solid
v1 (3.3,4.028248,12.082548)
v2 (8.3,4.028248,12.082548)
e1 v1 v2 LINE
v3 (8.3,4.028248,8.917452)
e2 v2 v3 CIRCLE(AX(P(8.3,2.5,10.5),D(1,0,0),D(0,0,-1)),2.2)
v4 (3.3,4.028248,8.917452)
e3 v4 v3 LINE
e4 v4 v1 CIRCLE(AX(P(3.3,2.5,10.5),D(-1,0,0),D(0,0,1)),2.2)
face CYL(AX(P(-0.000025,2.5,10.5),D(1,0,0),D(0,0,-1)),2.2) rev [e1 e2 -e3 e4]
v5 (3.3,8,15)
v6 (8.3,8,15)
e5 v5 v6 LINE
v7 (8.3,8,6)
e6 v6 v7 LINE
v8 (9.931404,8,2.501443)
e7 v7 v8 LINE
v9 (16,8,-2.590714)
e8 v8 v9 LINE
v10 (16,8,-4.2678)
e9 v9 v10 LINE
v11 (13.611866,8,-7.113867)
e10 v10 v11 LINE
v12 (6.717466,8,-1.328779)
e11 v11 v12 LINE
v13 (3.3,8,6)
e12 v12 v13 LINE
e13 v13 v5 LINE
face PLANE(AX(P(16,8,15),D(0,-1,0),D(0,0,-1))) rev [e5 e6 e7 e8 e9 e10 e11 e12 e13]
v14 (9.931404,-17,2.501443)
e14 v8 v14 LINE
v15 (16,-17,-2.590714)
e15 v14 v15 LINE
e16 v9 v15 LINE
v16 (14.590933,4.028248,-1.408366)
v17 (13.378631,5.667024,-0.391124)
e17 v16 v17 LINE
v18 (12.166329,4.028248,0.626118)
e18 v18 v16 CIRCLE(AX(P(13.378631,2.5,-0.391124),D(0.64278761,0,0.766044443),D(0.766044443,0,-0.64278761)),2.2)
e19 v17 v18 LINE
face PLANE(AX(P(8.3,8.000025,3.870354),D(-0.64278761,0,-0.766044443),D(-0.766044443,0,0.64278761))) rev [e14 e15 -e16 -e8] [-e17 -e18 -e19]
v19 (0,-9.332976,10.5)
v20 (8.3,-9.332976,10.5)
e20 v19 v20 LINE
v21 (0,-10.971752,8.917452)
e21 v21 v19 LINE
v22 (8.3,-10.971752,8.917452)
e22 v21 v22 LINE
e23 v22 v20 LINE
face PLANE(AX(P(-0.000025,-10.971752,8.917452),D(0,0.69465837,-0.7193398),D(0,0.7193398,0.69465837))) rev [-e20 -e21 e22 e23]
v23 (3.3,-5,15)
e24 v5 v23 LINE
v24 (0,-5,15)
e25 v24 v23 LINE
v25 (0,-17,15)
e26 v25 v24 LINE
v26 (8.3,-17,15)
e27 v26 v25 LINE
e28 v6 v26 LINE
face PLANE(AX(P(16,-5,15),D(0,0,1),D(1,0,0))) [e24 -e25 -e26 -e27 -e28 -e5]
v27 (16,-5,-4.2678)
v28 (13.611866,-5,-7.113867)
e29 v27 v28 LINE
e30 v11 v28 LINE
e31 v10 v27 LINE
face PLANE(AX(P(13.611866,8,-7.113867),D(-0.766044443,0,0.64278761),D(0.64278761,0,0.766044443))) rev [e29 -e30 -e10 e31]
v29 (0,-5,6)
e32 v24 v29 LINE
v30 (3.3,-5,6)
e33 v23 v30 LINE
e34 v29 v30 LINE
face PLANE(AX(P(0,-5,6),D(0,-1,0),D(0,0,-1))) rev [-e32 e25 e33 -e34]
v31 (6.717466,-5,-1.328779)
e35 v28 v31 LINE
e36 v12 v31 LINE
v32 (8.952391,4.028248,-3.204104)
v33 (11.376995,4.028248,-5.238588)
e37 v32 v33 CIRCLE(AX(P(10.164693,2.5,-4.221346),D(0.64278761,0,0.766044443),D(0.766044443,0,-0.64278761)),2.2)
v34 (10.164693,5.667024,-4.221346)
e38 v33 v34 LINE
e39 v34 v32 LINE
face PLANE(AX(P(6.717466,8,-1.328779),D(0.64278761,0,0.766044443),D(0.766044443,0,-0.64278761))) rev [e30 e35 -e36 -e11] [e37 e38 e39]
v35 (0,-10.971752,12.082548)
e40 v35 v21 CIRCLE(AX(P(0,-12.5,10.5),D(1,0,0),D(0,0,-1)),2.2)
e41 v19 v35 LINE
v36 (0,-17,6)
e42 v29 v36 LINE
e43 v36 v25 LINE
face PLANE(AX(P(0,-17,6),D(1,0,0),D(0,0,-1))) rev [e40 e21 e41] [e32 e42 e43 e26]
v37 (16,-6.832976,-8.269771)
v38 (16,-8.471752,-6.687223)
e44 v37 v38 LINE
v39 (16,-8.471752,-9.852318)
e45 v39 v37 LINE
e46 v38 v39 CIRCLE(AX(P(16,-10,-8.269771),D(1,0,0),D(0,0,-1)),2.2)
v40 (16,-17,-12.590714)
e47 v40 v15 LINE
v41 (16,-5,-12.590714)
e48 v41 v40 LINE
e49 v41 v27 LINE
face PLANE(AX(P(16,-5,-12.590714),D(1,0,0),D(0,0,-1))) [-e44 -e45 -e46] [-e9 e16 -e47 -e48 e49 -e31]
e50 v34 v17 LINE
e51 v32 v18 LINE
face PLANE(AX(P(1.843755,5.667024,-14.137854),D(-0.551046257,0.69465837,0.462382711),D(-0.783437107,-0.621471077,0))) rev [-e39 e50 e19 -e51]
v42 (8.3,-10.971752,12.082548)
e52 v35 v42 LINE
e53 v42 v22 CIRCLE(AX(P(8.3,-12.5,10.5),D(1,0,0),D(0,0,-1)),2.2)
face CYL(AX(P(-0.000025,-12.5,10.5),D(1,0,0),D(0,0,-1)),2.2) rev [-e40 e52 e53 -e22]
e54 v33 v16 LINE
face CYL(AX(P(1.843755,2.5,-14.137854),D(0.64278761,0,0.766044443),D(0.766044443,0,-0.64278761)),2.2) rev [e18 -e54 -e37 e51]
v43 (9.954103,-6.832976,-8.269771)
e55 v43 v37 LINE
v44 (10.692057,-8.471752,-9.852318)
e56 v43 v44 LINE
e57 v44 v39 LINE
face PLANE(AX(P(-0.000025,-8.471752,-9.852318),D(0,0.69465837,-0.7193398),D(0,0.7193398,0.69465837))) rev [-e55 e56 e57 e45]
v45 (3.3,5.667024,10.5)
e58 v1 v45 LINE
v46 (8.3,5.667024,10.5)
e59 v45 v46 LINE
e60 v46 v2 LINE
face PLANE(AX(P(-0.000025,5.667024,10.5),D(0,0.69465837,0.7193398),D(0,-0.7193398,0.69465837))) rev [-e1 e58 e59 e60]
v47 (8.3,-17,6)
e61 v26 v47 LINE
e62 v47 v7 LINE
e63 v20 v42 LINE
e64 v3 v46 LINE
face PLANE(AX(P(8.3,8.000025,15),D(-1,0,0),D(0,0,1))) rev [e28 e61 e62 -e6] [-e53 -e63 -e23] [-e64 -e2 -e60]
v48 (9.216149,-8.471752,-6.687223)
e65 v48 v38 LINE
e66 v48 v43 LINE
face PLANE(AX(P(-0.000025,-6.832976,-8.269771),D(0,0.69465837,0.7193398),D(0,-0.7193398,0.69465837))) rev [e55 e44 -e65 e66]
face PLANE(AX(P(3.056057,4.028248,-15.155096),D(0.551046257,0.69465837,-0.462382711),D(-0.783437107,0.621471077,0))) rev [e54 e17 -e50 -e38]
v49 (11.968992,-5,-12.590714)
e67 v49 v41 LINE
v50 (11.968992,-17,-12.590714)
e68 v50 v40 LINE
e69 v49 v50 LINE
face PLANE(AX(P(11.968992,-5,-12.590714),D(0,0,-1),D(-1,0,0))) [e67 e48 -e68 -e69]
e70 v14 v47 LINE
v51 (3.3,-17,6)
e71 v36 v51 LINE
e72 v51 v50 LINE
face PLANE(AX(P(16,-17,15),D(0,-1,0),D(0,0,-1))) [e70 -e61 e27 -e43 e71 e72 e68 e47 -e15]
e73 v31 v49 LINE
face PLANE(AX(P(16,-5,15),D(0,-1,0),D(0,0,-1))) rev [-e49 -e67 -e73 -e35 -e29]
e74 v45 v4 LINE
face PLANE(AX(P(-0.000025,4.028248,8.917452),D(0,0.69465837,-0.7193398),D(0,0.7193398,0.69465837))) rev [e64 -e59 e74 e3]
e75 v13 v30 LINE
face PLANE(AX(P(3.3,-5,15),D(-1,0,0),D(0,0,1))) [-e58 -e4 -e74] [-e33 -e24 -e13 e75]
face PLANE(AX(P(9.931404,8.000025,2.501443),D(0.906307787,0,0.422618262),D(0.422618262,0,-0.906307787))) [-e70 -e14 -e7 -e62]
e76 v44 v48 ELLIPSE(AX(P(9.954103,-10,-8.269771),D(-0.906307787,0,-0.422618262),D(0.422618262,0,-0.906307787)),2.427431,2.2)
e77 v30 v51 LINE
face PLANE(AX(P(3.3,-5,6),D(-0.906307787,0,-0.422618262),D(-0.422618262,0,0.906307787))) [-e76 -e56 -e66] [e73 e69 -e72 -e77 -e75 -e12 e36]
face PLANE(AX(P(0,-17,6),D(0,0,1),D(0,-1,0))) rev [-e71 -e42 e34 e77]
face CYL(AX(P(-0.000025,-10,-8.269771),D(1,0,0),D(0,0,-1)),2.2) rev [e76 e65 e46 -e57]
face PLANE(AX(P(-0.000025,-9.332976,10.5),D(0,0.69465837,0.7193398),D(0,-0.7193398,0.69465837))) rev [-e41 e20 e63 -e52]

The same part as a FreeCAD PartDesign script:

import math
import FreeCAD as App
import Part
import Sketcher
Q = App.Units.Quantity


def edges_at(feature, points):
    """Names of the edges that pass closest to the given points."""
    edges = feature.Shape.Edges
    near = lambda p: min(range(len(edges)), key=lambda i: edges[i].distToShape(Part.Vertex(*p))[0])
    return sorted({f"Edge{near(p) + 1}" for p in points})

doc = App.newDocument("Part")
body = doc.addObject("PartDesign::Body", "Body")

# Sketch on XZ plane
sketch1 = doc.addObject("Sketcher::SketchObject", "Sketch")
body.addObject(sketch1)
sketch1.AttachmentSupport = (doc.XZ_Plane, [""])
sketch1.MapMode = "FlatFace"
sketch1.AttachmentOffset = App.Placement(App.Vector(0, 0, 17), App.Rotation())
sketch1.addGeometry(Part.LineSegment(App.Vector(16, 15, 0), App.Vector(3.3, 15, 0)), False)
sketch1.addGeometry(Part.LineSegment(App.Vector(3.3, 15, 0), App.Vector(3.3, 6, 0)), False)
sketch1.addGeometry(Part.LineSegment(App.Vector(3.3, 6, 0), App.Vector(12, -12.6, 0)), False)
sketch1.addGeometry(Part.LineSegment(App.Vector(12, -12.6, 0), App.Vector(16, -12.6, 0)), False)
sketch1.addGeometry(Part.LineSegment(App.Vector(16, -12.6, 0), App.Vector(16, 15, 0)), False)
sketch1.addConstraint(Sketcher.Constraint("Coincident", 0, 2, 1, 1))
sketch1.addConstraint(Sketcher.Constraint("Coincident", 1, 2, 2, 1))
sketch1.addConstraint(Sketcher.Constraint("Coincident", 2, 2, 3, 1))
sketch1.addConstraint(Sketcher.Constraint("Coincident", 3, 2, 4, 1))
sketch1.addConstraint(Sketcher.Constraint("Coincident", 4, 2, 0, 1))
sketch1.addConstraint(Sketcher.Constraint("Horizontal", 0))
sketch1.addConstraint(Sketcher.Constraint("Vertical", 1))
sketch1.addConstraint(Sketcher.Constraint("Horizontal", 3))
sketch1.addConstraint(Sketcher.Constraint("Vertical", 4))
sketch1.addConstraint(Sketcher.Constraint("DistanceY", 1, 2, 1, 1, 9.0))
sketch1.addConstraint(Sketcher.Constraint("Angle", 2, Q("-65 deg")))
sketch1.addConstraint(Sketcher.Constraint("DistanceX", 0, 2, 0, 1, 12.7))
sketch1.addConstraint(Sketcher.Constraint("DistanceY", -1, 1, 0, 2, 15.0))
sketch1.addConstraint(Sketcher.Constraint("DistanceX", -1, 1, 3, 2, 16.0))
sketch1.addConstraint(Sketcher.Constraint("DistanceX", 3, 1, 3, 2, 4.031008))
pad1 = doc.addObject("PartDesign::Pad", "Pad")
body.addObject(pad1)
pad1.Profile = sketch1
pad1.Length = 12
pad1.Reversed = True

# Sketch on XZ plane
sketch2 = doc.addObject("Sketcher::SketchObject", "Sketch001")
body.addObject(sketch2)
sketch2.AttachmentSupport = (doc.XZ_Plane, [""])
sketch2.MapMode = "FlatFace"
sketch2.AttachmentOffset = App.Placement(App.Vector(0, 0, 5), App.Rotation())
sketch2.addGeometry(Part.LineSegment(App.Vector(3.3, 15, 0), App.Vector(16, 15, 0)), False)
sketch2.addGeometry(Part.LineSegment(App.Vector(16, 15, 0), App.Vector(16, -4.3, 0)), False)
sketch2.addGeometry(Part.LineSegment(App.Vector(16, -4.3, 0), App.Vector(13.6, -7.1, 0)), False)
sketch2.addGeometry(Part.LineSegment(App.Vector(13.6, -7.1, 0), App.Vector(6.7, -1.3, 0)), False)
sketch2.addGeometry(Part.LineSegment(App.Vector(6.7, -1.3, 0), App.Vector(3.3, 6, 0)), False)
sketch2.addGeometry(Part.LineSegment(App.Vector(3.3, 6, 0), App.Vector(3.3, 15, 0)), False)
sketch2.addConstraint(Sketcher.Constraint("Coincident", 0, 2, 1, 1))
sketch2.addConstraint(Sketcher.Constraint("Coincident", 1, 2, 2, 1))
sketch2.addConstraint(Sketcher.Constraint("Coincident", 2, 2, 3, 1))
sketch2.addConstraint(Sketcher.Constraint("Coincident", 3, 2, 4, 1))
sketch2.addConstraint(Sketcher.Constraint("Coincident", 4, 2, 5, 1))
sketch2.addConstraint(Sketcher.Constraint("Coincident", 5, 2, 0, 1))
sketch2.addConstraint(Sketcher.Constraint("Horizontal", 0))
sketch2.addConstraint(Sketcher.Constraint("Vertical", 1))
sketch2.addConstraint(Sketcher.Constraint("Vertical", 5))
sketch2.addConstraint(Sketcher.Constraint("Perpendicular", 2, 3))
sketch2.addConstraint(Sketcher.Constraint("DistanceY", 5, 1, 5, 2, 9.0))
sketch2.addConstraint(Sketcher.Constraint("Angle", 2, Q("-130 deg")))
sketch2.addConstraint(Sketcher.Constraint("Angle", 4, Q("115 deg")))
sketch2.addConstraint(Sketcher.Constraint("Distance", 3, 9.0))
sketch2.addConstraint(Sketcher.Constraint("DistanceX", 0, 1, 0, 2, 12.7))
sketch2.addConstraint(Sketcher.Constraint("DistanceX", -1, 1, 0, 2, 16.0))
sketch2.addConstraint(Sketcher.Constraint("DistanceY", -1, 1, 0, 2, 15.0))
sketch2.addConstraint(Sketcher.Constraint("DistanceY", 1, 2, 1, 1, 19.2678))
pad2 = doc.addObject("PartDesign::Pad", "Pad001")
body.addObject(pad2)
pad2.Profile = sketch2
pad2.Length = 13
pad2.Reversed = True

# Sketch on YZ plane
sketch3 = doc.addObject("Sketcher::SketchObject", "Sketch002")
body.addObject(sketch3)
sketch3.AttachmentSupport = (doc.YZ_Plane, [""])
sketch3.MapMode = "FlatFace"
sketch3.AttachmentOffset = App.Placement(App.Vector(0, 0, 3.3), App.Rotation())
sketch3.addGeometry(Part.LineSegment(App.Vector(-5, 6, 0), App.Vector(-17, 6, 0)), False)
sketch3.addGeometry(Part.LineSegment(App.Vector(-17, 6, 0), App.Vector(-17, 15, 0)), False)
sketch3.addGeometry(Part.LineSegment(App.Vector(-17, 15, 0), App.Vector(-5, 15, 0)), False)
sketch3.addGeometry(Part.LineSegment(App.Vector(-5, 15, 0), App.Vector(-5, 6, 0)), False)
sketch3.addConstraint(Sketcher.Constraint("Coincident", 0, 2, 1, 1))
sketch3.addConstraint(Sketcher.Constraint("Coincident", 1, 2, 2, 1))
sketch3.addConstraint(Sketcher.Constraint("Coincident", 2, 2, 3, 1))
sketch3.addConstraint(Sketcher.Constraint("Coincident", 3, 2, 0, 1))
sketch3.addConstraint(Sketcher.Constraint("Horizontal", 0))
sketch3.addConstraint(Sketcher.Constraint("Vertical", 1))
sketch3.addConstraint(Sketcher.Constraint("Horizontal", 2))
sketch3.addConstraint(Sketcher.Constraint("Vertical", 3))
sketch3.addConstraint(Sketcher.Constraint("DistanceX", 0, 2, 0, 1, 12.0))
sketch3.addConstraint(Sketcher.Constraint("DistanceY", 1, 1, 1, 2, 9.0))
sketch3.addConstraint(Sketcher.Constraint("DistanceX", 0, 2, -1, 1, 17.0))
sketch3.addConstraint(Sketcher.Constraint("DistanceY", -1, 1, 0, 2, 6.0))
pad3 = doc.addObject("PartDesign::Pad", "Pad002")
body.addObject(pad3)
pad3.Profile = sketch3
pad3.Length = 3.3
pad3.Reversed = True

# Sketch on XZ plane
sketch4 = doc.addObject("Sketcher::SketchObject", "Sketch003")
body.addObject(sketch4)
sketch4.AttachmentSupport = (doc.XZ_Plane, [""])
sketch4.MapMode = "FlatFace"
sketch4.AttachmentOffset = App.Placement(App.Vector(0, 0, 17), App.Rotation())
sketch4.addGeometry(Part.LineSegment(App.Vector(16, 15, 0), App.Vector(8, 15, 0)), False)
sketch4.addGeometry(Part.LineSegment(App.Vector(8, 15, 0), App.Vector(8, 4, 0)), False)
sketch4.addGeometry(Part.LineSegment(App.Vector(8, 4, 0), App.Vector(16, -3, 0)), False)
sketch4.addGeometry(Part.LineSegment(App.Vector(16, -3, 0), App.Vector(16, 15, 0)), False)
sketch4.addConstraint(Sketcher.Constraint("Coincident", 0, 2, 1, 1))
sketch4.addConstraint(Sketcher.Constraint("Coincident", 1, 2, 2, 1))
sketch4.addConstraint(Sketcher.Constraint("Coincident", 2, 2, 3, 1))
sketch4.addConstraint(Sketcher.Constraint("Coincident", 3, 2, 0, 1))
sketch4.addConstraint(Sketcher.Constraint("Horizontal", 0))
sketch4.addConstraint(Sketcher.Constraint("Vertical", 1))
sketch4.addConstraint(Sketcher.Constraint("Vertical", 3))
sketch4.addConstraint(Sketcher.Constraint("Angle", 2, Q("-40 deg")))
sketch4.addConstraint(Sketcher.Constraint("DistanceX", 0, 2, 0, 1, 7.7))
sketch4.addConstraint(Sketcher.Constraint("DistanceY", -1, 1, 0, 2, 15.0))
sketch4.addConstraint(Sketcher.Constraint("DistanceX", -1, 1, 2, 2, 16.0))
sketch4.addConstraint(Sketcher.Constraint("DistanceY", 1, 2, 1, 1, 11.129646))
pocket1 = doc.addObject("PartDesign::Pocket", "Pocket")
body.addObject(pocket1)
pocket1.Profile = sketch4
pocket1.Type = "ThroughAll"

# Sketch on YZ plane
sketch5 = doc.addObject("Sketcher::SketchObject", "Sketch004")
body.addObject(sketch5)
sketch5.AttachmentSupport = (doc.YZ_Plane, [""])
sketch5.MapMode = "FlatFace"
sketch5.AttachmentOffset = App.Placement(App.Vector(0, 0, 8.3), App.Rotation())
sketch5.addGeometry(Part.LineSegment(App.Vector(-11, 8.9, 0), App.Vector(-9.3, 10.5, 0)), False)
sketch5.addGeometry(Part.LineSegment(App.Vector(-9.3, 10.5, 0), App.Vector(-11, 12.1, 0)), False)
sketch5.addGeometry(Part.ArcOfCircle(Part.Circle(App.Vector(-12.5, 10.5, 0), App.Vector(0, 0, 1), 2.2), math.radians(46), math.radians(314)), False)
sketch5.addConstraint(Sketcher.Constraint("Coincident", 0, 2, 1, 1))
sketch5.addConstraint(Sketcher.Constraint("Tangent", 1, 2, 2, 1))
sketch5.addConstraint(Sketcher.Constraint("Tangent", 2, 2, 0, 1))
sketch5.addConstraint(Sketcher.Constraint("Horizontal", 2, 3, 0, 2))
sketch5.addConstraint(Sketcher.Constraint("Radius", 2, 2.2))
sketch5.addConstraint(Sketcher.Constraint("Angle", 0, Q("44 deg")))
sketch5.addConstraint(Sketcher.Constraint("DistanceX", 2, 3, -1, 1, 12.5))
sketch5.addConstraint(Sketcher.Constraint("DistanceY", -1, 1, 2, 3, 10.5))
pocket2 = doc.addObject("PartDesign::Pocket", "Pocket001")
body.addObject(pocket2)
pocket2.Profile = sketch5
pocket2.Type = "ThroughAll"

# Sketch on YZ plane
sketch6 = doc.addObject("Sketcher::SketchObject", "Sketch005")
body.addObject(sketch6)
sketch6.AttachmentSupport = (doc.YZ_Plane, [""])
sketch6.MapMode = "FlatFace"
sketch6.AttachmentOffset = App.Placement(App.Vector(0, 0, 8.3), App.Rotation())
sketch6.addGeometry(Part.LineSegment(App.Vector(4, 8.9, 0), App.Vector(5.7, 10.5, 0)), False)
sketch6.addGeometry(Part.LineSegment(App.Vector(5.7, 10.5, 0), App.Vector(4, 12.1, 0)), False)
sketch6.addGeometry(Part.ArcOfCircle(Part.Circle(App.Vector(2.5, 10.5, 0), App.Vector(0, 0, 1), 2.2), math.radians(46), math.radians(314)), False)
sketch6.addConstraint(Sketcher.Constraint("Coincident", 0, 2, 1, 1))
sketch6.addConstraint(Sketcher.Constraint("Tangent", 1, 2, 2, 1))
sketch6.addConstraint(Sketcher.Constraint("Tangent", 2, 2, 0, 1))
sketch6.addConstraint(Sketcher.Constraint("Horizontal", 2, 3, 0, 2))
sketch6.addConstraint(Sketcher.Constraint("Radius", 2, 2.2))
sketch6.addConstraint(Sketcher.Constraint("Angle", 0, Q("44 deg")))
sketch6.addConstraint(Sketcher.Constraint("DistanceX", -1, 1, 2, 3, 2.5))
sketch6.addConstraint(Sketcher.Constraint("DistanceY", -1, 1, 2, 3, 10.5))
pocket3 = doc.addObject("PartDesign::Pocket", "Pocket002")
body.addObject(pocket3)
pocket3.Profile = sketch6
pocket3.Type = "ThroughAll"

# Sketch on an angled plane
sketch7 = doc.addObject("Sketcher::SketchObject", "Sketch006")
body.addObject(sketch7)
sketch7.Placement = App.Placement(App.Vector(5.335137, 0, 6.358169), App.Rotation(App.Vector(0.766044443, 0, -0.64278761), App.Vector(0, 1, 0), App.Vector(0.64278761, 0, 0.766044443), "ZXY"))
sketch7.addGeometry(Part.LineSegment(App.Vector(12.1, 4, 0), App.Vector(10.5, 5.7, 0)), False)
sketch7.addGeometry(Part.LineSegment(App.Vector(10.5, 5.7, 0), App.Vector(8.9, 4, 0)), False)
sketch7.addGeometry(Part.ArcOfCircle(Part.Circle(App.Vector(10.5, 2.5, 0), App.Vector(0, 0, 1), 2.2), math.radians(136), math.radians(404)), False)
sketch7.addConstraint(Sketcher.Constraint("Coincident", 0, 2, 1, 1))
sketch7.addConstraint(Sketcher.Constraint("Tangent", 1, 2, 2, 1))
sketch7.addConstraint(Sketcher.Constraint("Tangent", 2, 2, 0, 1))
sketch7.addConstraint(Sketcher.Constraint("Horizontal", 1, 2, 2, 2))
sketch7.addConstraint(Sketcher.Constraint("Radius", 2, 2.2))
sketch7.addConstraint(Sketcher.Constraint("Angle", 0, Q("134 deg")))
sketch7.addConstraint(Sketcher.Constraint("DistanceY", -1, 1, 2, 3, 2.5))
sketch7.addConstraint(Sketcher.Constraint("DistanceX", -1, 1, 2, 3, 10.500035))
pocket4 = doc.addObject("PartDesign::Pocket", "Pocket003")
body.addObject(pocket4)
pocket4.Profile = sketch7
pocket4.Type = "ThroughAll"

# Sketch on YZ plane
sketch8 = doc.addObject("Sketcher::SketchObject", "Sketch007")
body.addObject(sketch8)
sketch8.AttachmentSupport = (doc.YZ_Plane, [""])
sketch8.MapMode = "FlatFace"
sketch8.AttachmentOffset = App.Placement(App.Vector(0, 0, 16), App.Rotation())
sketch8.addGeometry(Part.LineSegment(App.Vector(-8.5, -9.9, 0), App.Vector(-6.8, -8.3, 0)), False)
sketch8.addGeometry(Part.LineSegment(App.Vector(-6.8, -8.3, 0), App.Vector(-8.5, -6.7, 0)), False)
sketch8.addGeometry(Part.ArcOfCircle(Part.Circle(App.Vector(-10, -8.3, 0), App.Vector(0, 0, 1), 2.2), math.radians(46), math.radians(314)), False)
sketch8.addConstraint(Sketcher.Constraint("Coincident", 0, 2, 1, 1))
sketch8.addConstraint(Sketcher.Constraint("Tangent", 1, 2, 2, 1))
sketch8.addConstraint(Sketcher.Constraint("Tangent", 2, 2, 0, 1))
sketch8.addConstraint(Sketcher.Constraint("Horizontal", 2, 3, 0, 2))
sketch8.addConstraint(Sketcher.Constraint("Radius", 2, 2.2))
sketch8.addConstraint(Sketcher.Constraint("Angle", 0, Q("44 deg")))
sketch8.addConstraint(Sketcher.Constraint("DistanceX", 2, 3, -1, 1, 10.0))
sketch8.addConstraint(Sketcher.Constraint("DistanceY", 2, 3, -1, 1, 8.269771))
pocket5 = doc.addObject("PartDesign::Pocket", "Pocket004")
body.addObject(pocket5)
pocket5.Profile = sketch8
pocket5.Type = "ThroughAll"
doc.recompute()

chamfer = doc.addObject("PartDesign::Chamfer", "Chamfer")
body.addObject(chamfer)
chamfer.Base = (pocket5, edges_at(pocket5, [(8.3, -4.5, 3.87)]))
chamfer.Size = 2.129646

doc.recompute()
